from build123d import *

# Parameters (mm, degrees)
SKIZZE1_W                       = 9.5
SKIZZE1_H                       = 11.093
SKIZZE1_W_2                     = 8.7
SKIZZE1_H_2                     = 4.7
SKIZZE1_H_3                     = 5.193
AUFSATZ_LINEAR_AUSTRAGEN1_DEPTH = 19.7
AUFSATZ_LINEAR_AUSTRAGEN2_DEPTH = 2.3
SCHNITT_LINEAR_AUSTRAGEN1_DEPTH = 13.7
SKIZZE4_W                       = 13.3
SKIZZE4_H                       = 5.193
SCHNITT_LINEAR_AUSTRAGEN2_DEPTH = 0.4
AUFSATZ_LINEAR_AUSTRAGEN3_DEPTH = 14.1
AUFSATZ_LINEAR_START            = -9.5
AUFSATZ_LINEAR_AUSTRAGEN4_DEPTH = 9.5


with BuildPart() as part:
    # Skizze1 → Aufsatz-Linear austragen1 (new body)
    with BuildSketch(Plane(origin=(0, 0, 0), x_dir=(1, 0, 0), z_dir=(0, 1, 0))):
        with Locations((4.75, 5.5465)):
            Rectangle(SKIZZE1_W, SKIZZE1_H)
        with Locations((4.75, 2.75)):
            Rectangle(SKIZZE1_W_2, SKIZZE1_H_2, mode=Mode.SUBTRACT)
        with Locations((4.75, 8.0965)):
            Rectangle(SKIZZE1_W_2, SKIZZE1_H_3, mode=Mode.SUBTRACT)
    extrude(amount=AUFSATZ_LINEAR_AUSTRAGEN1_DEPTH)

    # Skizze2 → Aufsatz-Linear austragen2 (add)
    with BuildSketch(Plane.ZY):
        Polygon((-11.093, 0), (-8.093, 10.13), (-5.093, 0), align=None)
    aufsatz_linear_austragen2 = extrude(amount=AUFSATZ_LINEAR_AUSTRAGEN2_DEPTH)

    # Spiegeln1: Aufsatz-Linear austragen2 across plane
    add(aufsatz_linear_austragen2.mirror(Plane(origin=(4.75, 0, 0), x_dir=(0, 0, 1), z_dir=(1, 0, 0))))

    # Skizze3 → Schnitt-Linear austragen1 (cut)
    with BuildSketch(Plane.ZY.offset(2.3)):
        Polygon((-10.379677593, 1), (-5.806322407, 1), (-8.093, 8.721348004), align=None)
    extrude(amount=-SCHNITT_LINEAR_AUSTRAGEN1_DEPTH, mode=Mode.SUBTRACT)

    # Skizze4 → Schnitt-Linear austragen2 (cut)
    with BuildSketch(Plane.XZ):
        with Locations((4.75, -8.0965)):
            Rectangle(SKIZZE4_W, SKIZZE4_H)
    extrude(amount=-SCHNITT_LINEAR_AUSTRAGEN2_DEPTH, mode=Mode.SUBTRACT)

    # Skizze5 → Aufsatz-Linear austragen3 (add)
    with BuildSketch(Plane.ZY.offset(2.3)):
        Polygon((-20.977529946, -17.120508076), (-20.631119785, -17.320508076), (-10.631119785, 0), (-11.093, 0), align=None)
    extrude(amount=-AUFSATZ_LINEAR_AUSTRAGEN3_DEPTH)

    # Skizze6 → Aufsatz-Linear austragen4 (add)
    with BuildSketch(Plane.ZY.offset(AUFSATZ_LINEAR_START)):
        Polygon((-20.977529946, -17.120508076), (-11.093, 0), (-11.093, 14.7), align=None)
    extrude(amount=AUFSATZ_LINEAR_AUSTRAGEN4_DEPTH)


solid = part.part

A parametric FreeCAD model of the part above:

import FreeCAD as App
import Part
import Sketcher
from FreeCAD import Vector
Q = App.Units.Quantity


def add_polygon(sketch, points):
    """Adds a closed chain of lines whose ends are joined by coincident constraints."""
    first, n = sketch.GeometryCount, len(points)
    for a, b in zip(points, points[1:] + points[:1]):
        sketch.addGeometry(Part.LineSegment(App.Vector(*a, 0), App.Vector(*b, 0)), False)
    for i in range(n):
        sketch.addConstraint(Sketcher.Constraint("Coincident", first + i, 2, first + (i + 1) % n, 1))

doc = App.newDocument("Part")
body = doc.addObject("PartDesign::Body", "Body")

sketch1 = body.newObject("Sketcher::SketchObject", "Sketch")
sketch1.AttachmentSupport = (doc.getObject("XZ_Plane"), [""])
sketch1.MapMode = "FlatFace"
add_polygon(sketch1, [(0, -11.093), (0, 0), (9.5, 0), (9.5, -11.093)])
add_polygon(sketch1, [(9.1, -0.4), (0.4, -0.4), (0.4, -5.1), (9.1, -5.1)])
add_polygon(sketch1, [(9.1, -5.5), (0.4, -5.5), (0.4, -10.693), (9.1, -10.693)])
sketch1.addConstraint([
    Sketcher.Constraint("Vertical", 0),
    Sketcher.Constraint("Horizontal", 1),
    Sketcher.Constraint("Vertical", 2),
    Sketcher.Constraint("Horizontal", 3),
    Sketcher.Constraint("Horizontal", 4),
    Sketcher.Constraint("Vertical", 5),
    Sketcher.Constraint("Horizontal", 6),
    Sketcher.Constraint("Vertical", 7),
    Sketcher.Constraint("Horizontal", 8),
    Sketcher.Constraint("Vertical", 9),
    Sketcher.Constraint("Horizontal", 10),
    Sketcher.Constraint("Vertical", 11),
    Sketcher.Constraint("Coincident", 0, 2, -1, 1),
    Sketcher.Constraint("Vertical", 5, 2, 8, 2),
    Sketcher.Constraint("Vertical", 7, 2, 10, 2),
    Sketcher.Constraint("DistanceX", 1, 1, 1, 2, 9.5),
    Sketcher.Constraint("DistanceX", 4, 2, 4, 1, 8.7),
    Sketcher.Constraint("DistanceY", 5, 2, 5, 1, 4.7),
    Sketcher.Constraint("DistanceX", -1, 1, 4, 2, 0.4),
    Sketcher.Constraint("DistanceY", 4, 2, -1, 1, 0.4),
    Sketcher.Constraint("DistanceY", 8, 2, -1, 1, 5.5),
    Sketcher.Constraint("DistanceY", 3, 2, 9, 2, 0.4),
    Sketcher.Constraint("DistanceY", 0, 1, 0, 2, 11.093),
])
pad1 = body.newObject("PartDesign::Pad", "Pad")
pad1.Profile = sketch1
pad1.Length = 19.7
pad1.Reversed = True

sketch2 = body.newObject("Sketcher::SketchObject", "Sketch001")
sketch2.AttachmentSupport = (doc.getObject("YZ_Plane"), [""])
sketch2.MapMode = "FlatFace"
add_polygon(sketch2, [(10.13, -8.093), (0, -11.093), (0, -5.093)])
sketch2.addConstraint([
    Sketcher.Constraint("Vertical", 1),
    Sketcher.Constraint("PointOnObject", 0, 2, -2),
    Sketcher.Constraint("Equal", 0, 2),
    Sketcher.Constraint("DistanceY", 1, 1, 1, 2, 6.0),
    Sketcher.Constraint("DistanceX", -1, 1, 2, 2, 10.13),
    Sketcher.Constraint("DistanceY", 0, 2, -1, 1, 11.093),
])
pad2 = body.newObject("PartDesign::Pad", "Pad001")
pad2.Profile = sketch2
pad2.Length = 2.3
pad2.Reversed = True
doc.recompute()

datumplane = body.newObject("PartDesign::Plane", "DatumPlane")
datumplane.AttachmentSupport = (doc.getObject("YZ_Plane"), [""])
datumplane.MapMode = "FlatFace"
datumplane.AttachmentOffset = App.Placement(Vector(0, 0, 4.75), App.Rotation())
mirrored = body.newObject("PartDesign::Mirrored", "Mirrored")
mirrored.Originals = [pad2]
mirrored.MirrorPlane = (datumplane, [""])
body.Tip = mirrored

sketch3 = body.newObject("Sketcher::SketchObject", "Sketch002")
sketch3.AttachmentSupport = (doc.getObject("YZ_Plane"), [""])
sketch3.MapMode = "FlatFace"
sketch3.AttachmentOffset = App.Placement(Vector(0, 0, -2.3), App.Rotation())
add_polygon(sketch3, [(1, -10.379678), (1, -5.806322), (8.721348, -8.093)])
sketch3.addConstraint([
    Sketcher.Constraint("Vertical", 0),
    Sketcher.Constraint("Equal", 1, 2),
    Sketcher.Constraint("DistanceX", -1, 1, 0, 2, 1.0),
    Sketcher.Constraint("DistanceY", 1, 2, -1, 1, 8.093),
    Sketcher.Constraint("DistanceY", 0, 1, 0, 2, 4.573355),
    Sketcher.Constraint("DistanceX", -1, 1, 1, 2, 8.721348),
])
pocket1 = body.newObject("PartDesign::Pocket", "Pocket")
pocket1.Profile = sketch3
pocket1.Length = 13.7
pocket1.Reversed = True

sketch4 = body.newObject("Sketcher::SketchObject", "Sketch003")
sketch4.AttachmentSupport = (doc.getObject("XZ_Plane"), [""])
sketch4.MapMode = "FlatFace"
add_polygon(sketch4, [(-1.9, -5.5), (-1.9, -10.693), (11.4, -10.693), (11.4, -5.5)])
sketch4.addConstraint([
    Sketcher.Constraint("Vertical", 0),
    Sketcher.Constraint("Horizontal", 1),
    Sketcher.Constraint("Vertical", 2),
    Sketcher.Constraint("Horizontal", 3),
    Sketcher.Constraint("DistanceX", 1, 1, 1, 2, 13.3),
    Sketcher.Constraint("DistanceX", 0, 2, -1, 1, 1.9),
    Sketcher.Constraint("DistanceY", 2, 2, -1, 1, 5.5),
    Sketcher.Constraint("DistanceY", 0, 2, 0, 1, 5.193),
])
pocket2 = body.newObject("PartDesign::Pocket", "Pocket001")
pocket2.Profile = sketch4
pocket2.Length = 0.4

sketch5 = body.newObject("Sketcher::SketchObject", "Sketch004")
sketch5.AttachmentSupport = (doc.getObject("YZ_Plane"), [""])
sketch5.MapMode = "FlatFace"
sketch5.AttachmentOffset = App.Placement(Vector(0, 0, -2.3), App.Rotation())
add_polygon(sketch5, [(-17.120508, -20.97753), (-17.320508, -20.63112), (0, -10.63112), (0, -11.093)])
sketch5.addConstraint([
    Sketcher.Constraint("Vertical", 2),
    Sketcher.Constraint("PointOnObject", 1, 2, -2),
    Sketcher.Constraint("Perpendicular", 0, 1),
    Sketcher.Constraint("Parallel", 1, 3),
    Sketcher.Constraint("Angle", 0, Q("120 deg")),
    Sketcher.Constraint("Distance", 1, 20.0),
    Sketcher.Constraint("Distance", 0, 0.4),
    Sketcher.Constraint("DistanceY", 2, 2, -1, 1, 11.093),
])
pad3 = body.newObject("PartDesign::Pad", "Pad002")
pad3.Profile = sketch5
pad3.Length = 14.1

sketch6 = body.newObject("Sketcher::SketchObject", "Sketch005")
sketch6.AttachmentSupport = (doc.getObject("YZ_Plane"), [""])
sketch6.MapMode = "FlatFace"
sketch6.AttachmentOffset = App.Placement(Vector(0, 0, 9.5), App.Rotation())
add_polygon(sketch6, [(-17.120508, -20.97753), (0, -11.093), (14.7, -11.093)])
sketch6.addConstraint([
    Sketcher.Constraint("Horizontal", 1),
    Sketcher.Constraint("PointOnObject", 0, 2, -2),
    Sketcher.Constraint("Angle", 0, Q("30 deg")),
    Sketcher.Constraint("DistanceX", 1, 1, 1, 2, 14.7),
    Sketcher.Constraint("DistanceY", 0, 2, -1, 1, 11.093),
    Sketcher.Constraint("Distance", 0, 19.76906),
])
pad4 = body.newObject("PartDesign::Pad", "Pad003")
pad4.Profile = sketch6
pad4.Length = 9.5
pad4.Reversed = True

doc.recompute()
